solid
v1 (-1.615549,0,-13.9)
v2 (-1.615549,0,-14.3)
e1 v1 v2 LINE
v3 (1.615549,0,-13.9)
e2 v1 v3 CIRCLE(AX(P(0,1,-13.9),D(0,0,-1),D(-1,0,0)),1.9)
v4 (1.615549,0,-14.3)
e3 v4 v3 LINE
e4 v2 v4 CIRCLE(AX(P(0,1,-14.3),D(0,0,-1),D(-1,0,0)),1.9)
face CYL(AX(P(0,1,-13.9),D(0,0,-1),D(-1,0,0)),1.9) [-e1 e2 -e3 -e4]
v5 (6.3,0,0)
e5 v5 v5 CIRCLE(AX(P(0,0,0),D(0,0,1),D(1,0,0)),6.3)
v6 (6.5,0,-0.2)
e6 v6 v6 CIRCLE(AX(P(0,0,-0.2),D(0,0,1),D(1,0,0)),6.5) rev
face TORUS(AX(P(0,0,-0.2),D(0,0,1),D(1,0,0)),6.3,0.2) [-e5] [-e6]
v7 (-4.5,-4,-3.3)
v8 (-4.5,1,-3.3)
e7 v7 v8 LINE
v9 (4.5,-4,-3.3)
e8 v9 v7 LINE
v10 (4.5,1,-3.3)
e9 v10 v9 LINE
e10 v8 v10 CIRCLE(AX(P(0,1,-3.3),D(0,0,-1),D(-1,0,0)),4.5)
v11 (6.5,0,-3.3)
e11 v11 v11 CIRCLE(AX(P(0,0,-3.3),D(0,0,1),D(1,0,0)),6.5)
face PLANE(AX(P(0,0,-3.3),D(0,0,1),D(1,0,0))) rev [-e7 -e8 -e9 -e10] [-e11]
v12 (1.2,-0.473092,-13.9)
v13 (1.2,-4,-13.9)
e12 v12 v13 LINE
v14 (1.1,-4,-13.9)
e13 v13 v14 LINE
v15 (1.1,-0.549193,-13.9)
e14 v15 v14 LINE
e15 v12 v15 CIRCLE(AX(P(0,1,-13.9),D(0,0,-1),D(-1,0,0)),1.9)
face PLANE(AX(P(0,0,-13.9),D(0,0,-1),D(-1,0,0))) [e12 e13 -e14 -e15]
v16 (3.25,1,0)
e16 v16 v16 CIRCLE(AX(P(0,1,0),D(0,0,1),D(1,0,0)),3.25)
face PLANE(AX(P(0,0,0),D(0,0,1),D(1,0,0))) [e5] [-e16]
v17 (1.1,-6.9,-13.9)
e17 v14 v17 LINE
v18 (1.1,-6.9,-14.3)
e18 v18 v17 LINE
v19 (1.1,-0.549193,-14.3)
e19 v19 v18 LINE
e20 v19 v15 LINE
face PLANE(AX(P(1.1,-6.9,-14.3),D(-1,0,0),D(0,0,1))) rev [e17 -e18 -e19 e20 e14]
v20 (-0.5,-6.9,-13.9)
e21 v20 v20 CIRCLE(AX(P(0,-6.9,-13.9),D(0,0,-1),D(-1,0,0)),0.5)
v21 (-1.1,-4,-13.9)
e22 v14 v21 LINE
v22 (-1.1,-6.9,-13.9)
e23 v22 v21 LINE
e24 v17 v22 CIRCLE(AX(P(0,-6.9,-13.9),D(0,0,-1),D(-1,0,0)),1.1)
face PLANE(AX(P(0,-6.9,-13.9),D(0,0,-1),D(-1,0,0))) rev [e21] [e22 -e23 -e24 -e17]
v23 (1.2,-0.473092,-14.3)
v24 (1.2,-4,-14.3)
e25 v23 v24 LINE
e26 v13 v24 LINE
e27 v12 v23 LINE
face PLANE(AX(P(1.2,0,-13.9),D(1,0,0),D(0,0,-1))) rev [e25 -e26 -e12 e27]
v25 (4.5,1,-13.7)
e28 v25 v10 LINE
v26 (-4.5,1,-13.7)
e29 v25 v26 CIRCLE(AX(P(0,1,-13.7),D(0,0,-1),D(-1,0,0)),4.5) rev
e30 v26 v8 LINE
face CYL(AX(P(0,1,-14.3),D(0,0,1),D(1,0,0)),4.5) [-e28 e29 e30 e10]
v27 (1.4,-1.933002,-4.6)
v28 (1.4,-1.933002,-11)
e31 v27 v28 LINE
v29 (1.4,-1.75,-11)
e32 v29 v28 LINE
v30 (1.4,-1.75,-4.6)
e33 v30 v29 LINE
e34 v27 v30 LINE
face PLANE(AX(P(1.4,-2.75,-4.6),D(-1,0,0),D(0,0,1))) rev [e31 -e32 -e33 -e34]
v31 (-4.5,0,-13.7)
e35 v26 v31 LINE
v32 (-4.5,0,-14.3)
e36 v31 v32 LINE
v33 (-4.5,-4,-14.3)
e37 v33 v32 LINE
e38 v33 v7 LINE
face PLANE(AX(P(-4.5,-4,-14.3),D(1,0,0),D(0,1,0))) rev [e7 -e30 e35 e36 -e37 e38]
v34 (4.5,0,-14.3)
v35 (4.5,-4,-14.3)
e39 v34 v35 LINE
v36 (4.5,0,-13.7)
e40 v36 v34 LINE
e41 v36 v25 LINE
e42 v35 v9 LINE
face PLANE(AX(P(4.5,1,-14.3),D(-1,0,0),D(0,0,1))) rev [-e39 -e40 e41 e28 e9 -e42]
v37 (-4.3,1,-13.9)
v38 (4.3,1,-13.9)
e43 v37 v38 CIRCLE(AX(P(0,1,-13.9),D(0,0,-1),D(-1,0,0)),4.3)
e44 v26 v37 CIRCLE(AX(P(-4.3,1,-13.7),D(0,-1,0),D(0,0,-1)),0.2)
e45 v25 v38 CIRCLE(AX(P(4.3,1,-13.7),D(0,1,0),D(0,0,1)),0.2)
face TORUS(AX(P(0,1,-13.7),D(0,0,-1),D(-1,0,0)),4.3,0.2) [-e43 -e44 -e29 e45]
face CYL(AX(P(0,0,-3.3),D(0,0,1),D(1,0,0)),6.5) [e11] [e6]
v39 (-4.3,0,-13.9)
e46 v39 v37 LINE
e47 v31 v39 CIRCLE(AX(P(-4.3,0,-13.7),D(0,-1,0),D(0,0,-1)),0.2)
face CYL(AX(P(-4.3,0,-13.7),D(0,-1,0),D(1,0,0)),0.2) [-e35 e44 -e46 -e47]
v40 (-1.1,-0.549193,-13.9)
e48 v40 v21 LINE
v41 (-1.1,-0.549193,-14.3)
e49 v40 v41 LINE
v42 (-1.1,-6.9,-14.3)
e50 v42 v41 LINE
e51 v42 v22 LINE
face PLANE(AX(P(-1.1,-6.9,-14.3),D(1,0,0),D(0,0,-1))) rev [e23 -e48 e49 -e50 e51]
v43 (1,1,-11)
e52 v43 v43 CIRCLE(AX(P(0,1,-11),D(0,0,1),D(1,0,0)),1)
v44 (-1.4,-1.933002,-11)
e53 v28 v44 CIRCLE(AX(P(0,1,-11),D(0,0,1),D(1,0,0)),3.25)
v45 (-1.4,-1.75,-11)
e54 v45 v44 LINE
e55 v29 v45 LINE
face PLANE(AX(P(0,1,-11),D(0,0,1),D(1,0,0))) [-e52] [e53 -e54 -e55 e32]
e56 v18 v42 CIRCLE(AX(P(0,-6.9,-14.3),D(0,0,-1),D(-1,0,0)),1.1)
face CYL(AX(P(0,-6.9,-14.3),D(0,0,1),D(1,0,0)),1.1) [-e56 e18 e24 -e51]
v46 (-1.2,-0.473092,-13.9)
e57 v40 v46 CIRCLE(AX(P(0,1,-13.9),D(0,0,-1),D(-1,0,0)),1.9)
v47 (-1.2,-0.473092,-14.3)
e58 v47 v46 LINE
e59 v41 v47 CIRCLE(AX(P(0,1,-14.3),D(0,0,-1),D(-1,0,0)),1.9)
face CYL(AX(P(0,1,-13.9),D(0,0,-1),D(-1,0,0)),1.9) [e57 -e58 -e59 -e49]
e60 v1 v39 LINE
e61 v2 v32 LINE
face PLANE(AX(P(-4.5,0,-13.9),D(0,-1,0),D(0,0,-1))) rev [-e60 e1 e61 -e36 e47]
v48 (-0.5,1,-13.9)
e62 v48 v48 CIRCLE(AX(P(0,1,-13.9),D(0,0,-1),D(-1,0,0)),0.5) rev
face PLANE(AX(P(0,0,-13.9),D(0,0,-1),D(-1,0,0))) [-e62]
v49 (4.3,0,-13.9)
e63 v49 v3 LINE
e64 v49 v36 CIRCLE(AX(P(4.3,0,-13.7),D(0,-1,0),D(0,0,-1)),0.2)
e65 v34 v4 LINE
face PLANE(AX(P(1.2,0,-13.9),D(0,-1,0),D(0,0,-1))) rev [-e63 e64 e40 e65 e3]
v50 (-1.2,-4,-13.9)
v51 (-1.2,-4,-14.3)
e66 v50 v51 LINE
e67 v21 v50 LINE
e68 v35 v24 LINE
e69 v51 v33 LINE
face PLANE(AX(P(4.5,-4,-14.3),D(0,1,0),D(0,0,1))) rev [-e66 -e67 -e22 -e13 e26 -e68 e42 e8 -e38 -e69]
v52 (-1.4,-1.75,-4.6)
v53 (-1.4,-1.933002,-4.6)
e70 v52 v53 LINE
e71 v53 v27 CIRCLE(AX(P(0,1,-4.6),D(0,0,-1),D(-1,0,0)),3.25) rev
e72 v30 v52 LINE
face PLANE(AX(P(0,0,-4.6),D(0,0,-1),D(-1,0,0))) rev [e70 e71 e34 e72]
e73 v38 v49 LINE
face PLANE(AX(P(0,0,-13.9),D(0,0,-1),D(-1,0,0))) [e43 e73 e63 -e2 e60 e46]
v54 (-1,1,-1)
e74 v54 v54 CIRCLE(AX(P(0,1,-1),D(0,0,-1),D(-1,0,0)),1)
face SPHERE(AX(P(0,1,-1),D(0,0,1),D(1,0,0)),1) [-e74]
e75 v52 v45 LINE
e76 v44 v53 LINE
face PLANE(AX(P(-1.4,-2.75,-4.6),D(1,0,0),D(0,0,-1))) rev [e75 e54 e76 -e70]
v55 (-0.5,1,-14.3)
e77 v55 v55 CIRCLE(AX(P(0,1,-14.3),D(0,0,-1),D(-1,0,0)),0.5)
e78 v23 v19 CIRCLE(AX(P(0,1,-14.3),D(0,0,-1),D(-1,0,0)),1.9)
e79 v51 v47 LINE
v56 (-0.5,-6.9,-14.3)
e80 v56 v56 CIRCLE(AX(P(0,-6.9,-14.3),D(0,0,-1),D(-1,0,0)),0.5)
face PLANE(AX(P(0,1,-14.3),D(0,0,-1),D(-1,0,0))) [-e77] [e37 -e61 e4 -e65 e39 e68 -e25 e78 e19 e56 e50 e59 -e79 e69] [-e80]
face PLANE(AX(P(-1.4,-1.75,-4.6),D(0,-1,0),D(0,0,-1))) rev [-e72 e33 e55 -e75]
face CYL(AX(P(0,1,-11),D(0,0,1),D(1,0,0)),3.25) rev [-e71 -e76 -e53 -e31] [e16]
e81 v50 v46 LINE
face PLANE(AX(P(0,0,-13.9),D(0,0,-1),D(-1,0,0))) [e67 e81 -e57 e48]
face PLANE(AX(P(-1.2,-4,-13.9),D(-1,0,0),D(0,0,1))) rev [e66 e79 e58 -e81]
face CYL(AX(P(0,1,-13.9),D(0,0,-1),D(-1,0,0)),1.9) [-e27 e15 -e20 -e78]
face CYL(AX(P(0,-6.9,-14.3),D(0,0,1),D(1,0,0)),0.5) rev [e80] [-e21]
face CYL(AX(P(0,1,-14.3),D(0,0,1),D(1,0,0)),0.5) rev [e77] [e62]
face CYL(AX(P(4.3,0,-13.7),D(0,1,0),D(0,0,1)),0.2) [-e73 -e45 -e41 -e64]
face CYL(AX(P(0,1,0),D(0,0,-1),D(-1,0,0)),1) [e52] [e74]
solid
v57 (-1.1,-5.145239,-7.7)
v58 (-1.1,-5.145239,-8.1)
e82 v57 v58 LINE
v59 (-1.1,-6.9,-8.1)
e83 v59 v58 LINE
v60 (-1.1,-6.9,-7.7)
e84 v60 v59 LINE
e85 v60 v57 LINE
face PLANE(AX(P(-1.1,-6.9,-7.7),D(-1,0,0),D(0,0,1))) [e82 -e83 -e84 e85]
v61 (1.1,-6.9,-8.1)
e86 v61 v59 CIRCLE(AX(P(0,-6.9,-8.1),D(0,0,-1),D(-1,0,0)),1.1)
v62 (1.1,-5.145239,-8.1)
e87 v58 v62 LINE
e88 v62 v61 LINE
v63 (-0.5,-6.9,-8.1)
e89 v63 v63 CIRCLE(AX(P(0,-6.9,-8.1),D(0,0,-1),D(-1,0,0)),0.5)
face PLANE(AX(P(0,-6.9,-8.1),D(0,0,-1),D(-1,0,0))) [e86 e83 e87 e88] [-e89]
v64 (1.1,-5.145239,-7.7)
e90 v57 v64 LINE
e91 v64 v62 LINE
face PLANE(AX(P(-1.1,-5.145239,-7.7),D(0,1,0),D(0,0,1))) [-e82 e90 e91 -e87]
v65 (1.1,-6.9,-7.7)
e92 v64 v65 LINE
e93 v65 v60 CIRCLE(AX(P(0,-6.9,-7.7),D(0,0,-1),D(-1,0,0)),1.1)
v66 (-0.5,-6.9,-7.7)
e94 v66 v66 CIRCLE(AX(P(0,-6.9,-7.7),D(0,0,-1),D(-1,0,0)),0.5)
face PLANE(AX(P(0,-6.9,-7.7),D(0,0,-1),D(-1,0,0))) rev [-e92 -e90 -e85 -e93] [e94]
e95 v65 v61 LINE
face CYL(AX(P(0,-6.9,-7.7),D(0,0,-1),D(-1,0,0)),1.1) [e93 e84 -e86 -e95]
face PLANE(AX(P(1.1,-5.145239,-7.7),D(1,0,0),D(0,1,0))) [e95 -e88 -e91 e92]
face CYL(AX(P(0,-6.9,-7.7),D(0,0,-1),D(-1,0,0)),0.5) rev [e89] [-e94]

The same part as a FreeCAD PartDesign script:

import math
import FreeCAD as App
import Part
import Sketcher


def edges_at(feature, points):
    """Names of the edges that pass closest to the given points."""
    edges = feature.Shape.Edges
    near = lambda p: min(range(len(edges)), key=lambda i: edges[i].distToShape(Part.Vertex(*p))[0])
    return sorted({f"Edge{near(p) + 1}" for p in points})

doc = App.newDocument("Part")
body = doc.addObject("PartDesign::Body", "Body")

# Sketch on XY plane
sketch1 = body.newObject("Sketcher::SketchObject", "Sketch")
sketch1.AttachmentSupport = (doc.getObject("XY_Plane"), [""])
sketch1.MapMode = "FlatFace"
sketch1.addGeometry(Part.Circle(App.Vector(0, 0, 0), App.Vector(0, 0, 1), 6), False)
sketch1.addConstraint(Sketcher.Constraint("Coincident", 0, 3, -1, 1))
sketch1.addConstraint(Sketcher.Constraint("Diameter", 0, 13.0))
pad1 = body.newObject("PartDesign::Pad", "Pad")
pad1.Profile = sketch1
pad1.Length = 3.3
pad1.Reversed = True

# Sketch on XY plane
sketch2 = body.newObject("Sketcher::SketchObject", "Sketch001")
sketch2.AttachmentSupport = (doc.getObject("XY_Plane"), [""])
sketch2.MapMode = "FlatFace"
sketch2.AttachmentOffset = App.Placement(App.Vector(0, 0, -3.3), App.Rotation())
sketch2.addGeometry(Part.LineSegment(App.Vector(4.5, -4, 0), App.Vector(-4.5, -4, 0)), False)
sketch2.addGeometry(Part.LineSegment(App.Vector(-4.5, -4, 0), App.Vector(-4.5, 1, 0)), False)
sketch2.addGeometry(Part.ArcOfCircle(Part.Circle(App.Vector(0, 1, 0), App.Vector(0, 0, 1), 4.5), math.radians(0), math.radians(180)), False)
sketch2.addGeometry(Part.LineSegment(App.Vector(4.5, 1, 0), App.Vector(4.5, -4, 0)), False)
sketch2.addConstraint(Sketcher.Constraint("Coincident", 0, 2, 1, 1))
sketch2.addConstraint(Sketcher.Constraint("Tangent", 1, 2, 2, 2))
sketch2.addConstraint(Sketcher.Constraint("Tangent", 2, 1, 3, 1))
sketch2.addConstraint(Sketcher.Constraint("Coincident", 3, 2, 0, 1))
sketch2.addConstraint(Sketcher.Constraint("Horizontal", 0))
sketch2.addConstraint(Sketcher.Constraint("Vertical", 1))
sketch2.addConstraint(Sketcher.Constraint("Vertical", 3))
sketch2.addConstraint(Sketcher.Constraint("PointOnObject", 2, 3, -2))
sketch2.addConstraint(Sketcher.Constraint("Radius", 2, 4.5))
sketch2.addConstraint(Sketcher.Constraint("DistanceY", 1, 1, 1, 2, 5.0))
sketch2.addConstraint(Sketcher.Constraint("DistanceY", -1, 1, 2, 3, 1.0))
pad2 = body.newObject("PartDesign::Pad", "Pad001")
pad2.Profile = sketch2
pad2.Length = 11
pad2.Reversed = True

# Sketch on XY plane
sketch3 = body.newObject("Sketcher::SketchObject", "Sketch002")
sketch3.AttachmentSupport = (doc.getObject("XY_Plane"), [""])
sketch3.MapMode = "FlatFace"
sketch3.addGeometry(Part.Circle(App.Vector(0, 1, 0), App.Vector(0, 0, 1), 3.2), False)
sketch3.addConstraint(Sketcher.Constraint("PointOnObject", 0, 3, -2))
sketch3.addConstraint(Sketcher.Constraint("Diameter", 0, 6.5))
sketch3.addConstraint(Sketcher.Constraint("DistanceY", -1, 1, 0, 3, 1.0))
pocket1 = body.newObject("PartDesign::Pocket", "Pocket")
pocket1.Profile = sketch3
pocket1.Length = 11

# Sketch on XY plane
sketch4 = body.newObject("Sketcher::SketchObject", "Sketch003")
sketch4.AttachmentSupport = (doc.getObject("XY_Plane"), [""])
sketch4.MapMode = "FlatFace"
sketch4.AttachmentOffset = App.Placement(App.Vector(0, 0, -11), App.Rotation())
sketch4.addGeometry(Part.Circle(App.Vector(0, 1, 0), App.Vector(0, 0, 1), 1), False)
sketch4.addConstraint(Sketcher.Constraint("PointOnObject", 0, 3, -2))
sketch4.addConstraint(Sketcher.Constraint("Diameter", 0, 2.0))
sketch4.addConstraint(Sketcher.Constraint("DistanceY", -1, 1, 0, 3, 1.0))
pad3 = body.newObject("PartDesign::Pad", "Pad002")
pad3.Profile = sketch4
pad3.Length = 11
doc.recompute()

fillet = body.newObject("PartDesign::Fillet", "Fillet")
fillet.Base = (pad3, edges_at(pad3, [(-1, 1, 0)]))
fillet.Radius = 1

# Sketch on XY plane
sketch5 = body.newObject("Sketcher::SketchObject", "Sketch004")
sketch5.AttachmentSupport = (doc.getObject("XY_Plane"), [""])
sketch5.MapMode = "FlatFace"
sketch5.AttachmentOffset = App.Placement(App.Vector(0, 0, -14.3), App.Rotation())
sketch5.addGeometry(Part.LineSegment(App.Vector(-1.2, 0, 0), App.Vector(-4.5, 0, 0)), False)
sketch5.addGeometry(Part.LineSegment(App.Vector(-4.5, 0, 0), App.Vector(-4.5, 5.5, 0)), False)
sketch5.addGeometry(Part.LineSegment(App.Vector(-4.5, 5.5, 0), App.Vector(4.5, 5.5, 0)), False)
sketch5.addGeometry(Part.LineSegment(App.Vector(4.5, 5.5, 0), App.Vector(4.5, 0, 0)), False)
sketch5.addGeometry(Part.LineSegment(App.Vector(4.5, 0, 0), App.Vector(1.2, 0, 0)), False)
sketch5.addGeometry(Part.LineSegment(App.Vector(1.2, 0, 0), App.Vector(1.2, -4, 0)), False)
sketch5.addGeometry(Part.LineSegment(App.Vector(1.2, -4, 0), App.Vector(-1.2, -4, 0)), False)
sketch5.addGeometry(Part.LineSegment(App.Vector(-1.2, -4, 0), App.Vector(-1.2, 0, 0)), False)
sketch5.addConstraint(Sketcher.Constraint("Coincident", 0, 2, 1, 1))
sketch5.addConstraint(Sketcher.Constraint("Coincident", 1, 2, 2, 1))
sketch5.addConstraint(Sketcher.Constraint("Coincident", 2, 2, 3, 1))
sketch5.addConstraint(Sketcher.Constraint("Coincident", 3, 2, 4, 1))
sketch5.addConstraint(Sketcher.Constraint("Coincident", 4, 2, 5, 1))
sketch5.addConstraint(Sketcher.Constraint("Coincident", 5, 2, 6, 1))
sketch5.addConstraint(Sketcher.Constraint("Coincident", 6, 2, 7, 1))
sketch5.addConstraint(Sketcher.Constraint("Coincident", 7, 2, 0, 1))
sketch5.addConstraint(Sketcher.Constraint("Horizontal", 0))
sketch5.addConstraint(Sketcher.Constraint("Vertical", 1))
sketch5.addConstraint(Sketcher.Constraint("Horizontal", 2))
sketch5.addConstraint(Sketcher.Constraint("Vertical", 3))
sketch5.addConstraint(Sketcher.Constraint("Horizontal", 4))
sketch5.addConstraint(Sketcher.Constraint("Vertical", 5))
sketch5.addConstraint(Sketcher.Constraint("Horizontal", 6))
sketch5.addConstraint(Sketcher.Constraint("Vertical", 7))
sketch5.addConstraint(Sketcher.Constraint("Symmetric", 0, 2, 3, 2, -1, 1))
sketch5.addConstraint(Sketcher.Constraint("Symmetric", 4, 2, 7, 2, -2))
sketch5.addConstraint(Sketcher.Constraint("DistanceX", 2, 1, 2, 2, 9.0))
sketch5.addConstraint(Sketcher.Constraint("DistanceY", 5, 2, 5, 1, 4.0))
sketch5.addConstraint(Sketcher.Constraint("DistanceX", 0, 2, 0, 1, 3.3))
sketch5.addConstraint(Sketcher.Constraint("DistanceY", 1, 1, 1, 2, 5.5))
pocket2 = body.newObject("PartDesign::Pocket", "Pocket001")
pocket2.Profile = sketch5
pocket2.Length = 0.4
pocket2.Reversed = True

# Sketch on XY plane
sketch6 = body.newObject("Sketcher::SketchObject", "Sketch005")
sketch6.AttachmentSupport = (doc.getObject("XY_Plane"), [""])
sketch6.MapMode = "FlatFace"
sketch6.AttachmentOffset = App.Placement(App.Vector(0, 0, -13.9), App.Rotation())
sketch6.addGeometry(Part.LineSegment(App.Vector(1.1, 1, 0), App.Vector(1.1, -6.9, 0)), False)
sketch6.addGeometry(Part.ArcOfCircle(Part.Circle(App.Vector(0, -6.9, 0), App.Vector(0, 0, 1), 1.1), math.radians(180), math.radians(360)), False)
sketch6.addGeometry(Part.LineSegment(App.Vector(-1.1, -6.9, 0), App.Vector(-1.1, 1, 0)), False)
sketch6.addGeometry(Part.ArcOfCircle(Part.Circle(App.Vector(0, 1, 0), App.Vector(0, 0, 1), 1.1), math.radians(0), math.radians(180)), False)
sketch6.addGeometry(Part.Circle(App.Vector(0, -6.9, 0), App.Vector(0, 0, 1), 0.5), False)
sketch6.addGeometry(Part.Circle(App.Vector(0, 1, 0), App.Vector(0, 0, 1), 0.5), False)
sketch6.addConstraint(Sketcher.Constraint("Tangent", 0, 2, 1, 2))
sketch6.addConstraint(Sketcher.Constraint("Tangent", 1, 1, 2, 1))
sketch6.addConstraint(Sketcher.Constraint("Tangent", 2, 2, 3, 2))
sketch6.addConstraint(Sketcher.Constraint("Tangent", 3, 1, 0, 1))
sketch6.addConstraint(Sketcher.Constraint("Vertical", 0))
sketch6.addConstraint(Sketcher.Constraint("Vertical", 2))
sketch6.addConstraint(Sketcher.Constraint("Coincident", 4, 3, 1, 3))
sketch6.addConstraint(Sketcher.Constraint("Coincident", 5, 3, 3, 3))
sketch6.addConstraint(Sketcher.Constraint("Equal", 4, 5))
sketch6.addConstraint(Sketcher.Constraint("PointOnObject", 1, 3, -2))
sketch6.addConstraint(Sketcher.Constraint("Diameter", 4, 1.0))
sketch6.addConstraint(Sketcher.Constraint("Radius", 1, 1.1))
sketch6.addConstraint(Sketcher.Constraint("DistanceY", 0, 2, 0, 1, 7.9))
sketch6.addConstraint(Sketcher.Constraint("DistanceY", -1, 1, 3, 3, 1.0))
pad4 = body.newObject("PartDesign::Pad", "Pad003")
pad4.Profile = sketch6
pad4.Length = 0.4
pad4.Reversed = True

# Sketch on XY plane
sketch7 = body.newObject("Sketcher::SketchObject", "Sketch006")
sketch7.AttachmentSupport = (doc.getObject("XY_Plane"), [""])
sketch7.MapMode = "FlatFace"
sketch7.AttachmentOffset = App.Placement(App.Vector(0, 0, -13.9), App.Rotation())
sketch7.addGeometry(Part.Circle(App.Vector(0, 1, 0), App.Vector(0, 0, 1), 1.9), False)
sketch7.addGeometry(Part.Circle(App.Vector(0, 1, 0), App.Vector(0, 0, 1), 0.5), False)
sketch7.addConstraint(Sketcher.Constraint("Coincident", 1, 3, 0, 3))
sketch7.addConstraint(Sketcher.Constraint("PointOnObject", 0, 3, -2))
sketch7.addConstraint(Sketcher.Constraint("Diameter", 1, 1.0))
sketch7.addConstraint(Sketcher.Constraint("Diameter", 0, 3.8))
sketch7.addConstraint(Sketcher.Constraint("DistanceY", -1, 1, 0, 3, 1.0))
pad5 = body.newObject("PartDesign::Pad", "Pad004")
pad5.Profile = sketch7
pad5.Length = 0.4
pad5.Reversed = True

# Sketch on XY plane
sketch8 = body.newObject("Sketcher::SketchObject", "Sketch007")
sketch8.AttachmentSupport = (doc.getObject("XY_Plane"), [""])
sketch8.MapMode = "FlatFace"
sketch8.AttachmentOffset = App.Placement(App.Vector(0, 0, -11), App.Rotation())
sketch8.addGeometry(Part.LineSegment(App.Vector(-1.4, -1.8, 0), App.Vector(-1.4, -2.8, 0)), False)
sketch8.addGeometry(Part.LineSegment(App.Vector(-1.4, -2.8, 0), App.Vector(1.4, -2.8, 0)), False)
sketch8.addGeometry(Part.LineSegment(App.Vector(1.4, -2.8, 0), App.Vector(1.4, -1.8, 0)), False)
sketch8.addGeometry(Part.LineSegment(App.Vector(1.4, -1.8, 0), App.Vector(-1.4, -1.8, 0)), False)
sketch8.addConstraint(Sketcher.Constraint("Coincident", 0, 2, 1, 1))
sketch8.addConstraint(Sketcher.Constraint("Coincident", 1, 2, 2, 1))
sketch8.addConstraint(Sketcher.Constraint("Coincident", 2, 2, 3, 1))
sketch8.addConstraint(Sketcher.Constraint("Coincident", 3, 2, 0, 1))
sketch8.addConstraint(Sketcher.Constraint("Vertical", 0))
sketch8.addConstraint(Sketcher.Constraint("Horizontal", 1))
sketch8.addConstraint(Sketcher.Constraint("Vertical", 2))
sketch8.addConstraint(Sketcher.Constraint("Horizontal", 3))
sketch8.addConstraint(Sketcher.Constraint("DistanceY", 0, 2, 0, 1, 1.0))
sketch8.addConstraint(Sketcher.Constraint("DistanceX", 1, 1, 1, 2, 2.8))
sketch8.addConstraint(Sketcher.Constraint("DistanceX", 0, 2, -1, 1, 1.4))
sketch8.addConstraint(Sketcher.Constraint("DistanceY", 0, 2, -1, 1, 2.75))
pad6 = body.newObject("PartDesign::Pad", "Pad005")
pad6.Profile = sketch8
pad6.Length = 6.4
doc.recompute()

fillet2 = body.newObject("PartDesign::Fillet", "Fillet001")
fillet2.Base = (pad6, edges_at(pad6, [(0, 5.5, -13.9), (4.5, 0.5, -13.9), (-4.5, 0.5, -13.9)]))
fillet2.Radius = 0.2
doc.recompute()

fillet3 = body.newObject("PartDesign::Fillet", "Fillet002")
fillet3.Base = (fillet2, edges_at(fillet2, [(-6.5, 0, 0)]))
fillet3.Radius = 0.2
body2 = doc.addObject("PartDesign::Body", "Body001")

# Sketch on XY plane
sketch9 = body2.newObject("Sketcher::SketchObject", "Sketch008")
sketch9.AttachmentSupport = (doc.getObject("XY_Plane001"), [""])
sketch9.MapMode = "FlatFace"
sketch9.AttachmentOffset = App.Placement(App.Vector(0, 0, -7.7), App.Rotation())
sketch9.addGeometry(Part.LineSegment(App.Vector(1.1, -5.1, 0), App.Vector(1.1, -6.9, 0)), False)
sketch9.addGeometry(Part.ArcOfCircle(Part.Circle(App.Vector(0, -6.9, 0), App.Vector(0, 0, 1), 1.1), math.radians(180), math.radians(360)), False)
sketch9.addGeometry(Part.LineSegment(App.Vector(-1.1, -6.9, 0), App.Vector(-1.1, -5.1, 0)), False)
sketch9.addGeometry(Part.LineSegment(App.Vector(-1.1, -5.1, 0), App.Vector(1.1, -5.1, 0)), False)
sketch9.addGeometry(Part.Circle(App.Vector(0, -6.9, 0), App.Vector(0, 0, 1), 0.5), False)
sketch9.addConstraint(Sketcher.Constraint("Tangent", 0, 2, 1, 2))
sketch9.addConstraint(Sketcher.Constraint("Tangent", 1, 1, 2, 1))
sketch9.addConstraint(Sketcher.Constraint("Coincident", 2, 2, 3, 1))
sketch9.addConstraint(Sketcher.Constraint("Coincident", 3, 2, 0, 1))
sketch9.addConstraint(Sketcher.Constraint("Vertical", 0))
sketch9.addConstraint(Sketcher.Constraint("Vertical", 2))
sketch9.addConstraint(Sketcher.Constraint("Horizontal", 3))
sketch9.addConstraint(Sketcher.Constraint("Coincident", 4, 3, 1, 3))
sketch9.addConstraint(Sketcher.Constraint("PointOnObject", 1, 3, -2))
sketch9.addConstraint(Sketcher.Constraint("Diameter", 4, 1.0))
sketch9.addConstraint(Sketcher.Constraint("Radius", 1, 1.1))
sketch9.addConstraint(Sketcher.Constraint("DistanceY", 1, 3, -1, 1, 6.9))
sketch9.addConstraint(Sketcher.Constraint("DistanceY", 0, 2, 0, 1, 1.754761))
pad7 = body2.newObject("PartDesign::Pad", "Pad006")
pad7.Profile = sketch9
pad7.Length = 0.4
pad7.Reversed = True

doc.recompute()
